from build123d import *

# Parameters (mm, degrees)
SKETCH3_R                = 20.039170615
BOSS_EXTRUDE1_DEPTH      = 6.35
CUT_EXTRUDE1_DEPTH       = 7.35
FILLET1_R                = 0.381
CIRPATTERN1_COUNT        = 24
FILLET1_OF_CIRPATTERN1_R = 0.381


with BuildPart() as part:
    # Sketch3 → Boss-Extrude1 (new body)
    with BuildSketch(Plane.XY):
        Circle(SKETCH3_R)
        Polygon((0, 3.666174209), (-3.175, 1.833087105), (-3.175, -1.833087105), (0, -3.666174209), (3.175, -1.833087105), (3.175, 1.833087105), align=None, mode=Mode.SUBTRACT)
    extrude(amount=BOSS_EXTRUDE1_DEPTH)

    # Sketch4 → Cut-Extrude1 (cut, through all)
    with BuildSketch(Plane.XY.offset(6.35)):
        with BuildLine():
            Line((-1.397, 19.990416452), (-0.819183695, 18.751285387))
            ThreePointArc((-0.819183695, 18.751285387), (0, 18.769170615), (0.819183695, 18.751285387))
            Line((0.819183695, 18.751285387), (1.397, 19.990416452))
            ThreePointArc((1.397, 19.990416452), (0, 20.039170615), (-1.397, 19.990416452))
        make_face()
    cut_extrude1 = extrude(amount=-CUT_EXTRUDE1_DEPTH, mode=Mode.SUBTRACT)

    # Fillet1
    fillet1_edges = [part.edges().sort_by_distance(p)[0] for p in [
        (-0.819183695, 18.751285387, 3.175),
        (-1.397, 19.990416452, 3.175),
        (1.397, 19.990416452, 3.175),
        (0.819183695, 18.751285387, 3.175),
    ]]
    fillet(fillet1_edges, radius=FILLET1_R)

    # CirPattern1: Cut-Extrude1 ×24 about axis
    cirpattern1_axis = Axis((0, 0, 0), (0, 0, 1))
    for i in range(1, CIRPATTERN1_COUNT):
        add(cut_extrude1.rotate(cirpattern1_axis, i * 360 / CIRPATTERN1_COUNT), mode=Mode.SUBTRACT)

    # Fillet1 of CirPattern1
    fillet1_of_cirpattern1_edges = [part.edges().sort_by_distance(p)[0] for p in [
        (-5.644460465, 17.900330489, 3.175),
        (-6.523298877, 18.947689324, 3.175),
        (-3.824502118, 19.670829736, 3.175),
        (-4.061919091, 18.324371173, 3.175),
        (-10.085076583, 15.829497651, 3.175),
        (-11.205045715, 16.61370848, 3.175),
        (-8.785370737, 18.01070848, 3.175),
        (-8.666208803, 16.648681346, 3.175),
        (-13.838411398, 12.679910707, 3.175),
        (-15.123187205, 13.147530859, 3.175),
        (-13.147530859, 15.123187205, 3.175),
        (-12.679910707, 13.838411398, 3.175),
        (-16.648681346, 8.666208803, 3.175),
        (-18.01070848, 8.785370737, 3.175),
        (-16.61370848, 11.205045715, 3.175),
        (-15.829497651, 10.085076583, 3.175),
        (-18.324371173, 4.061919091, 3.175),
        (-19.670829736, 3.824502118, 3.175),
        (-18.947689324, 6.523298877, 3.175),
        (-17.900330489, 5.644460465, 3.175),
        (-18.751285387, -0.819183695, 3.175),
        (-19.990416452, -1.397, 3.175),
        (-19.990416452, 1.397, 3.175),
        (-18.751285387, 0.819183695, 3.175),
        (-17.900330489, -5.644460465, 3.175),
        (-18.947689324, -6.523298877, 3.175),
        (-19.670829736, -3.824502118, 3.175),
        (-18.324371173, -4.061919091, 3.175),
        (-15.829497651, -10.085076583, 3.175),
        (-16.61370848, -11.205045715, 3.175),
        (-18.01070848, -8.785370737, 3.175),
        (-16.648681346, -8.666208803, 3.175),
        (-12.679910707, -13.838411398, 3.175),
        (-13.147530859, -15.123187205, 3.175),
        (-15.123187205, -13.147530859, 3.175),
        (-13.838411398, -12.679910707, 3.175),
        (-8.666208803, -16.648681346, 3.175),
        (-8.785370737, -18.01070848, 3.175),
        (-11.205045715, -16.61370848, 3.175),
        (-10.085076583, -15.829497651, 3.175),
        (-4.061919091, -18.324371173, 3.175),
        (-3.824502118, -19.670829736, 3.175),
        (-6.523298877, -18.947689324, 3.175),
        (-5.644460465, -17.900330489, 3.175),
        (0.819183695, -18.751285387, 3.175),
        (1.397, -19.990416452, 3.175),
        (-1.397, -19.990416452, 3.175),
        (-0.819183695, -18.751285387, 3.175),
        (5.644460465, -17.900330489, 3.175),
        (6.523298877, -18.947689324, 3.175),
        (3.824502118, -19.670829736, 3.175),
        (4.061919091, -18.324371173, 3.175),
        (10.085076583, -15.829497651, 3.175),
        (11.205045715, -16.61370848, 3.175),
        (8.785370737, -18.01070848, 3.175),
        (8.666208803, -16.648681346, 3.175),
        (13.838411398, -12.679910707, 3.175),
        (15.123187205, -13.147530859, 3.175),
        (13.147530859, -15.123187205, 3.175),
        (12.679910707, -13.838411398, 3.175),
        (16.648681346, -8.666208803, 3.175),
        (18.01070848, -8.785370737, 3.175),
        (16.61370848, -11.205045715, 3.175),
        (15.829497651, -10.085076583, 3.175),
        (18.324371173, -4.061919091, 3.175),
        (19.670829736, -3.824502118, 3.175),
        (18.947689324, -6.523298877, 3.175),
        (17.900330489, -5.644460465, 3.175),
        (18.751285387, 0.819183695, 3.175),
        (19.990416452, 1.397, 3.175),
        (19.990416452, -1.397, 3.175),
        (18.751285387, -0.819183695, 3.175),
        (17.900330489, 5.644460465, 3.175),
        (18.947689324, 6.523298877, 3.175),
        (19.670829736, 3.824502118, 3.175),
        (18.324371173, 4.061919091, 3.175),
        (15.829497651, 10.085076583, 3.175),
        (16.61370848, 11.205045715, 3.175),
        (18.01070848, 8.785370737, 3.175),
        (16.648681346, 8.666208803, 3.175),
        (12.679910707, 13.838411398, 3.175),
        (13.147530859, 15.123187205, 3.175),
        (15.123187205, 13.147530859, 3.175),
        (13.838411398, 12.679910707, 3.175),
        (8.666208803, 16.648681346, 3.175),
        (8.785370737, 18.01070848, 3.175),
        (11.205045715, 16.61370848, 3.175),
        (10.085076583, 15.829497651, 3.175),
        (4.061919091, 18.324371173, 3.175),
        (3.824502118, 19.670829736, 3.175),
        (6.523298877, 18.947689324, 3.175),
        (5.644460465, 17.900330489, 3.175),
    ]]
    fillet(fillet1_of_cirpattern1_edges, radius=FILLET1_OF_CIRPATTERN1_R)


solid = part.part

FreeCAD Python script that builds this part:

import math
import FreeCAD as App
import Part
import Sketcher
Q = App.Units.Quantity


def edges_at(feature, points):
    """Names of the edges that pass closest to the given points."""
    edges = feature.Shape.Edges
    near = lambda p: min(range(len(edges)), key=lambda i: edges[i].distToShape(Part.Vertex(*p))[0])
    return sorted({f"Edge{near(p) + 1}" for p in points})

doc = App.newDocument("Part")
params = doc.addObject("Spreadsheet::Sheet", "Params")
for row, (alias, value) in enumerate([
    ("pad1_length", "0.25 in"),
    ("fillet_radius", "0.015 in"),
    ("fillet2_radius", "0.015 in"),
], start=1):
    params.set(f"A{row}", alias)
    params.set(f"B{row}", "=" + value)
    params.setAlias(f"B{row}", alias)

body = doc.addObject("PartDesign::Body", "Body")

sketch1 = doc.addObject("Sketcher::SketchObject", "Sketch")
body.addObject(sketch1)
sketch1.AttachmentSupport = (doc.XY_Plane, [""])
sketch1.MapMode = "FlatFace"
sketch1.addGeometry(Part.Circle(App.Vector(0, 0, 0), App.Vector(0, 0, 1), 20), False)
sketch1.addGeometry(Part.LineSegment(App.Vector(-3.2, 1.8, 0), App.Vector(0, 3.7, 0)), False)
sketch1.addGeometry(Part.LineSegment(App.Vector(0, 3.7, 0), App.Vector(3.2, 1.8, 0)), False)
sketch1.addGeometry(Part.LineSegment(App.Vector(3.2, 1.8, 0), App.Vector(3.2, -1.8, 0)), False)
sketch1.addGeometry(Part.LineSegment(App.Vector(3.2, -1.8, 0), App.Vector(0, -3.7, 0)), False)
sketch1.addGeometry(Part.LineSegment(App.Vector(0, -3.7, 0), App.Vector(-3.2, -1.8, 0)), False)
sketch1.addGeometry(Part.LineSegment(App.Vector(-3.2, -1.8, 0), App.Vector(-3.2, 1.8, 0)), False)
sketch1.addConstraint(Sketcher.Constraint("Coincident", 1, 2, 2, 1))
sketch1.addConstraint(Sketcher.Constraint("Coincident", 2, 2, 3, 1))
sketch1.addConstraint(Sketcher.Constraint("Coincident", 3, 2, 4, 1))
sketch1.addConstraint(Sketcher.Constraint("Coincident", 4, 2, 5, 1))
sketch1.addConstraint(Sketcher.Constraint("Coincident", 5, 2, 6, 1))
sketch1.addConstraint(Sketcher.Constraint("Coincident", 6, 2, 1, 1))
sketch1.addConstraint(Sketcher.Constraint("Vertical", 3))
sketch1.addConstraint(Sketcher.Constraint("Vertical", 6))
sketch1.addConstraint(Sketcher.Constraint("Coincident", 0, 3, -1, 1))
sketch1.addConstraint(Sketcher.Constraint("Symmetric", 1, 2, 4, 2, -1, 1))
sketch1.addConstraint(Sketcher.Constraint("Symmetric", 2, 2, 5, 2, -1, 1))
sketch1.addConstraint(Sketcher.Constraint("PointOnObject", 1, 2, -2))
sketch1.addConstraint(Sketcher.Constraint("Parallel", 1, 4))
sketch1.addConstraint(Sketcher.Constraint("Horizontal", 3, 2, 5, 2))
sketch1.addConstraint(Sketcher.Constraint("Angle", 1, Q("30 deg")))
sketch1.addConstraint(Sketcher.Constraint("DistanceX", 5, 2, 3, 2, Q("0.25 in")))
sketch1.addConstraint(Sketcher.Constraint("Diameter", 0, Q("40.078341 mm")))
sketch1.addConstraint(Sketcher.Constraint("DistanceY", 3, 2, 3, 1, Q("3.666174 mm")))
pad1 = doc.addObject("PartDesign::Pad", "Pad")
body.addObject(pad1)
pad1.Profile = sketch1
pad1.setExpression("Length", "Params.pad1_length")

sketch2 = doc.addObject("Sketcher::SketchObject", "Sketch001")
body.addObject(sketch2)
sketch2.AttachmentSupport = (doc.XY_Plane, [""])
sketch2.MapMode = "FlatFace"
sketch2.AttachmentOffset = App.Placement(App.Vector(0, 0, 0.25 * 25.4), App.Rotation())
sketch2.addGeometry(Part.LineSegment(App.Vector(-1.4, 20, 0), App.Vector(-0.8, 18.8, 0)), False)
sketch2.addGeometry(Part.ArcOfCircle(Part.Circle(App.Vector(0, 0, 0), App.Vector(0, 0, 1), 18.8), math.radians(87.5), math.radians(92.5)), False)
sketch2.addGeometry(Part.LineSegment(App.Vector(0.8, 18.8, 0), App.Vector(1.4, 20, 0)), False)
sketch2.addGeometry(Part.ArcOfCircle(Part.Circle(App.Vector(0, 0, 0), App.Vector(0, 0, 1), 20), math.radians(86), math.radians(94)), False)
sketch2.addConstraint(Sketcher.Constraint("Coincident", 0, 2, 1, 2))
sketch2.addConstraint(Sketcher.Constraint("Coincident", 1, 1, 2, 1))
sketch2.addConstraint(Sketcher.Constraint("Coincident", 2, 2, 3, 1))
sketch2.addConstraint(Sketcher.Constraint("Coincident", 3, 2, 0, 1))
sketch2.addConstraint(Sketcher.Constraint("Coincident", 1, 3, -1, 1))
sketch2.addConstraint(Sketcher.Constraint("Coincident", 3, 3, -1, 1))
sketch2.addConstraint(Sketcher.Constraint("Horizontal", 0, 2, 1, 1))
sketch2.addConstraint(Sketcher.Constraint("Horizontal", 2, 2, 3, 2))
sketch2.addConstraint(Sketcher.Constraint("Angle", 0, Q("-65 deg")))
sketch2.addConstraint(Sketcher.Constraint("DistanceX", 3, 2, 2, 2, Q("0.11 in")))
sketch2.addConstraint(Sketcher.Constraint("Radius", 1, Q("18.769171 mm")))
sketch2.addConstraint(Sketcher.Constraint("Radius", 3, Q("20.03917 mm")))
pocket1 = doc.addObject("PartDesign::Pocket", "Pocket")
body.addObject(pocket1)
pocket1.Profile = sketch2
pocket1.Type = "ThroughAll"
doc.recompute()

fillet = doc.addObject("PartDesign::Fillet", "Fillet")
body.addObject(fillet)
fillet.Base = (pocket1, edges_at(pocket1, [
    (-0.819, 18.751, 3.175),
    (-1.397, 19.99, 3.175),
    (1.397, 19.99, 3.175),
    (0.819, 18.751, 3.175),
]))
fillet.setExpression("Radius", "Params.fillet_radius")
doc.recompute()

polarpattern = doc.addObject("PartDesign::PolarPattern", "PolarPattern")
body.addObject(polarpattern)
polarpattern.Originals = [pocket1]
polarpattern.Axis = (doc.Z_Axis, [""])
polarpattern.Angle = 360
polarpattern.Occurrences = 24
body.Tip = polarpattern
doc.recompute()

fillet2 = doc.addObject("PartDesign::Fillet", "Fillet001")
body.addObject(fillet2)
fillet2.Base = (polarpattern, edges_at(polarpattern, [
    (-5.644, 17.9, 3.175),
    (-6.523, 18.948, 3.175),
    (-3.825, 19.671, 3.175),
    (-4.062, 18.324, 3.175),
    (-10.085, 15.829, 3.175),
    (-11.205, 16.614, 3.175),
    (-8.785, 18.011, 3.175),
    (-8.666, 16.649, 3.175),
    (-13.838, 12.68, 3.175),
    (-15.123, 13.148, 3.175),
    (-13.148, 15.123, 3.175),
    (-12.68, 13.838, 3.175),
    (-16.649, 8.666, 3.175),
    (-18.011, 8.785, 3.175),
    (-16.614, 11.205, 3.175),
    (-15.829, 10.085, 3.175),
    (-18.324, 4.062, 3.175),
    (-19.671, 3.825, 3.175),
    (-18.948, 6.523, 3.175),
    (-17.9, 5.644, 3.175),
    (-18.751, -0.819, 3.175),
    (-19.99, -1.397, 3.175),
    (-19.99, 1.397, 3.175),
    (-18.751, 0.819, 3.175),
    (-17.9, -5.644, 3.175),
    (-18.948, -6.523, 3.175),
    (-19.671, -3.825, 3.175),
    (-18.324, -4.062, 3.175),
    (-15.829, -10.085, 3.175),
    (-16.614, -11.205, 3.175),
    (-18.011, -8.785, 3.175),
    (-16.649, -8.666, 3.175),
    (-12.68, -13.838, 3.175),
    (-13.148, -15.123, 3.175),
    (-15.123, -13.148, 3.175),
    (-13.838, -12.68, 3.175),
    (-8.666, -16.649, 3.175),
    (-8.785, -18.011, 3.175),
    (-11.205, -16.614, 3.175),
    (-10.085, -15.829, 3.175),
    (-4.062, -18.324, 3.175),
    (-3.825, -19.671, 3.175),
    (-6.523, -18.948, 3.175),
    (-5.644, -17.9, 3.175),
    (0.819, -18.751, 3.175),
    (1.397, -19.99, 3.175),
    (-1.397, -19.99, 3.175),
    (-0.819, -18.751, 3.175),
    (5.644, -17.9, 3.175),
    (6.523, -18.948, 3.175),
    (3.825, -19.671, 3.175),
    (4.062, -18.324, 3.175),
    (10.085, -15.829, 3.175),
    (11.205, -16.614, 3.175),
    (8.785, -18.011, 3.175),
    (8.666, -16.649, 3.175),
    (13.838, -12.68, 3.175),
    (15.123, -13.148, 3.175),
    (13.148, -15.123, 3.175),
    (12.68, -13.838, 3.175),
    (16.649, -8.666, 3.175),
    (18.011, -8.785, 3.175),
    (16.614, -11.205, 3.175),
    (15.829, -10.085, 3.175),
    (18.324, -4.062, 3.175),
    (19.671, -3.825, 3.175),
    (18.948, -6.523, 3.175),
    (17.9, -5.644, 3.175),
    (18.751, 0.819, 3.175),
    (19.99, 1.397, 3.175),
    (19.99, -1.397, 3.175),
    (18.751, -0.819, 3.175),
    (17.9, 5.644, 3.175),
    (18.948, 6.523, 3.175),
    (19.671, 3.825, 3.175),
    (18.324, 4.062, 3.175),
    (15.829, 10.085, 3.175),
    (16.614, 11.205, 3.175),
    (18.011, 8.785, 3.175),
    (16.649, 8.666, 3.175),
    (12.68, 13.838, 3.175),
    (13.148, 15.123, 3.175),
    (15.123, 13.148, 3.175),
    (13.838, 12.68, 3.175),
    (8.666, 16.649, 3.175),
    (8.785, 18.011, 3.175),
    (11.205, 16.614, 3.175),
    (10.085, 15.829, 3.175),
    (4.062, 18.324, 3.175),
    (3.825, 19.671, 3.175),
    (6.523, 18.948, 3.175),
    (5.644, 17.9, 3.175),
]))
fillet2.setExpression("Radius", "Params.fillet2_radius")

doc.recompute()
